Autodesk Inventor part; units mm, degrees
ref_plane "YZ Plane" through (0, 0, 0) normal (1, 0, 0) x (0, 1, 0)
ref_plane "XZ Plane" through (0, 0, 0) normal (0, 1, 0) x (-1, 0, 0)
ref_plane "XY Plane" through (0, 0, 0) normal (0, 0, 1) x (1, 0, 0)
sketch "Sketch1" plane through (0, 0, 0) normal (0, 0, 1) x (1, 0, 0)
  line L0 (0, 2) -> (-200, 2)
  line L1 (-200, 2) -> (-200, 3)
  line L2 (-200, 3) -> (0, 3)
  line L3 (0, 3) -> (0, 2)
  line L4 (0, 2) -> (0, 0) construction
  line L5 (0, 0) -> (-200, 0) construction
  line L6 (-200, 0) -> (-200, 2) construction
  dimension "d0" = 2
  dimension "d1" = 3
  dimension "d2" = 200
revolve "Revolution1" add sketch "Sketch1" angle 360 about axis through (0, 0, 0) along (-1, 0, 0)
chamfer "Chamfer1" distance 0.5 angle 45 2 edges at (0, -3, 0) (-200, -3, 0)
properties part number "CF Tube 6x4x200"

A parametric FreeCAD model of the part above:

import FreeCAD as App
import Part
import Sketcher

V = App.Vector


def edges_at(feature, points):
    """Names of the edges that pass closest to the given points."""
    edges = feature.Shape.Edges
    near = lambda p: min(range(len(edges)), key=lambda i: edges[i].distToShape(Part.Vertex(*p))[0])
    return sorted({f"Edge{near(p) + 1}" for p in points})

doc = App.newDocument("Part")
body = doc.addObject("PartDesign::Body", "Body")

# Sketch on XY plane
sketch1 = body.newObject("Sketcher::SketchObject", "Sketch")
sketch1.AttachmentSupport = (doc.getObject("XY_Plane"), [""])
sketch1.MapMode = "FlatFace"
sketch1.addGeometry([
    Part.LineSegment(V(-200, 2, 0), V(0, 2, 0)),
    Part.LineSegment(V(0, 2, 0), V(0, 3, 0)),
    Part.LineSegment(V(0, 3, 0), V(-200, 3, 0)),
    Part.LineSegment(V(-200, 3, 0), V(-200, 2, 0)),
], False)
sketch1.addConstraint([
    Sketcher.Constraint("Coincident", 0, 2, 1, 1),
    Sketcher.Constraint("Coincident", 1, 2, 2, 1),
    Sketcher.Constraint("Coincident", 2, 2, 3, 1),
    Sketcher.Constraint("Coincident", 3, 2, 0, 1),
    Sketcher.Constraint("Horizontal", 0),
    Sketcher.Constraint("Vertical", 1),
    Sketcher.Constraint("Horizontal", 2),
    Sketcher.Constraint("Vertical", 3),
    Sketcher.Constraint("PointOnObject", 0, 2, -2),
    Sketcher.Constraint("DistanceX", 0, 1, 0, 2, 200.0),
    Sketcher.Constraint("DistanceY", -1, 1, 0, 2, 2.0),
    Sketcher.Constraint("DistanceY", -1, 1, 1, 2, 3.0),
])
revolution = body.newObject("PartDesign::Revolution", "Revolution")
revolution.Profile = sketch1
revolution.ReferenceAxis = (sketch1, ["H_Axis"])
revolution.Angle = 360
doc.recompute()

chamfer = body.newObject("PartDesign::Chamfer", "Chamfer")
chamfer.Base = (revolution, edges_at(revolution, [(0, -3, 0), (-200, -3, 0)]))
chamfer.Size = 0.5

doc.recompute()
